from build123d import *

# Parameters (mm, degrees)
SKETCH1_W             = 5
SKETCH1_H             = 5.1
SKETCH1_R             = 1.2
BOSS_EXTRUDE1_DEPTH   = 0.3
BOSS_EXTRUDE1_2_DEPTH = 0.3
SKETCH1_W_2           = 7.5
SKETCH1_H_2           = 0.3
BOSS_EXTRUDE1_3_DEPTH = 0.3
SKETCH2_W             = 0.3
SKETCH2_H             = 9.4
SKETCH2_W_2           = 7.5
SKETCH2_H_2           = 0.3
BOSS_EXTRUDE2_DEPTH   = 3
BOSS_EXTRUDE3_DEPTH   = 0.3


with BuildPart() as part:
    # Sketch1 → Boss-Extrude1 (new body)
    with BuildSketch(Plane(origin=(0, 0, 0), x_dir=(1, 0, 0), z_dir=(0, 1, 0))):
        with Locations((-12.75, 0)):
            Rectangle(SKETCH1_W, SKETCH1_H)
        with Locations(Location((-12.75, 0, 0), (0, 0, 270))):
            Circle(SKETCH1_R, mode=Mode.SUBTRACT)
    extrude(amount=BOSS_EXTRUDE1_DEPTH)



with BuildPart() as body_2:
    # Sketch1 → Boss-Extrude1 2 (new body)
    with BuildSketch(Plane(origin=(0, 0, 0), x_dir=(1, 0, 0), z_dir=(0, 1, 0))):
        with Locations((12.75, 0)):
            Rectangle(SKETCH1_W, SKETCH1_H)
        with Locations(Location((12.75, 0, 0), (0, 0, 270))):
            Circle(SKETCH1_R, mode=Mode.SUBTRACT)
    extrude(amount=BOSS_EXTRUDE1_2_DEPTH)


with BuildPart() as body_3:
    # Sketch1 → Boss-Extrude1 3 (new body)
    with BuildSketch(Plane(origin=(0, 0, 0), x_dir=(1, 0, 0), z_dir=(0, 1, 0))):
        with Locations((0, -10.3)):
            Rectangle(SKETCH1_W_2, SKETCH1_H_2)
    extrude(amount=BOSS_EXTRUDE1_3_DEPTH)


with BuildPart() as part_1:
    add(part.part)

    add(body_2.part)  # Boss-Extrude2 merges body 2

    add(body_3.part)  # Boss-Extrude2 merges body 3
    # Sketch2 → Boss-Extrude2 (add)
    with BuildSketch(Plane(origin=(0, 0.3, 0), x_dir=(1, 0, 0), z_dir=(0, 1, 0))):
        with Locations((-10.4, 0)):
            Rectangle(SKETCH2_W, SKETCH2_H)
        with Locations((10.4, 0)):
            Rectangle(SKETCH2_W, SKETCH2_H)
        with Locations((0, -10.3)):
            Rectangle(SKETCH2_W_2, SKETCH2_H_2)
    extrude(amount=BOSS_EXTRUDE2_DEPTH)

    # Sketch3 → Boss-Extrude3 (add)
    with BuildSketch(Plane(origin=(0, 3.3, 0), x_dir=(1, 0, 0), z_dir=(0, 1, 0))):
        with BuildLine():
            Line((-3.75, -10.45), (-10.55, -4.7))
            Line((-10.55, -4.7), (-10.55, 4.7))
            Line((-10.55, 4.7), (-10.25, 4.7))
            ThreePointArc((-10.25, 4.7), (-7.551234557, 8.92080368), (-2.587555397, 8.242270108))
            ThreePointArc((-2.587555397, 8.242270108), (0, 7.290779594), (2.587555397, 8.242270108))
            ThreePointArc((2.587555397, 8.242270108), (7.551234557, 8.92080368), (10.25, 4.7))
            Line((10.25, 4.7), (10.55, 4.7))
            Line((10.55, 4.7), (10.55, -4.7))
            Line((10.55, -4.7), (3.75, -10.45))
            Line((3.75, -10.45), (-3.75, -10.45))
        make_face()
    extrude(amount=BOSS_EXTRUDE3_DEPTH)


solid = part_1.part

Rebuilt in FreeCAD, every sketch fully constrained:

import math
import FreeCAD as App
import Part
import Sketcher
from FreeCAD import Vector
Q = App.Units.Quantity

doc = App.newDocument("Part")
body = doc.addObject("PartDesign::Body", "Body")

# Sketch on XZ plane
sketch1 = body.newObject("Sketcher::SketchObject", "Sketch")
sketch1.AttachmentSupport = (doc.getObject("XZ_Plane"), [""])
sketch1.MapMode = "FlatFace"
sketch1.addGeometry([
    Part.LineSegment(Vector(-15.25, -2.55, 0), Vector(-15.25, 2.55, 0)),  # 0
    Part.LineSegment(Vector(-15.25, 2.55, 0), Vector(-10.25, 2.55, 0)),  # 1
    Part.LineSegment(Vector(-10.25, 2.55, 0), Vector(-10.25, -2.55, 0)),  # 2
    Part.LineSegment(Vector(-10.25, -2.55, 0), Vector(-15.25, -2.55, 0)),  # 3
    Part.Circle(Vector(-12.75, 0, 0), Vector(0, 0, 1), 1.2),  # 4
], False)
sketch1.addConstraint([
    Sketcher.Constraint("Coincident", 0, 2, 1, 1),
    Sketcher.Constraint("Coincident", 1, 2, 2, 1),
    Sketcher.Constraint("Coincident", 2, 2, 3, 1),
    Sketcher.Constraint("Coincident", 3, 2, 0, 1),
    Sketcher.Constraint("Vertical", 0),
    Sketcher.Constraint("Horizontal", 1),
    Sketcher.Constraint("Vertical", 2),
    Sketcher.Constraint("Horizontal", 3),
    Sketcher.Constraint("PointOnObject", 4, 3, -1),
    Sketcher.Constraint("Diameter", 4, Q("2.4 mm")),
    Sketcher.Constraint("DistanceX", 1, 1, 1, 2, Q("5 mm")),
    Sketcher.Constraint("DistanceY", 0, 1, 0, 2, Q("5.1 mm")),
    Sketcher.Constraint("DistanceX", 0, 2, 4, 3, Q("2.5 mm")),
    Sketcher.Constraint("DistanceX", 4, 3, -1, 1, Q("12.75 mm")),
    Sketcher.Constraint("DistanceY", -1, 1, 0, 2, Q("2.55 mm")),
])
pad1 = body.newObject("PartDesign::Pad", "Pad")
pad1.Profile = sketch1
pad1.Length = 0.3
pad1.Reversed = True
body2 = doc.addObject("PartDesign::Body", "Body001")

# Sketch on XZ plane
sketch2 = body2.newObject("Sketcher::SketchObject", "Sketch001")
sketch2.AttachmentSupport = (doc.getObject("XZ_Plane001"), [""])
sketch2.MapMode = "FlatFace"
sketch2.addGeometry([
    Part.LineSegment(Vector(10.25, -2.55, 0), Vector(10.25, 2.55, 0)),  # 0
    Part.LineSegment(Vector(10.25, 2.55, 0), Vector(15.25, 2.55, 0)),  # 1
    Part.LineSegment(Vector(15.25, 2.55, 0), Vector(15.25, -2.55, 0)),  # 2
    Part.LineSegment(Vector(15.25, -2.55, 0), Vector(10.25, -2.55, 0)),  # 3
    Part.Circle(Vector(12.75, 0, 0), Vector(0, 0, 1), 1.2),  # 4
], False)
sketch2.addConstraint([
    Sketcher.Constraint("Coincident", 0, 2, 1, 1),
    Sketcher.Constraint("Coincident", 1, 2, 2, 1),
    Sketcher.Constraint("Coincident", 2, 2, 3, 1),
    Sketcher.Constraint("Coincident", 3, 2, 0, 1),
    Sketcher.Constraint("Vertical", 0),
    Sketcher.Constraint("Horizontal", 1),
    Sketcher.Constraint("Vertical", 2),
    Sketcher.Constraint("Horizontal", 3),
    Sketcher.Constraint("PointOnObject", 4, 3, -1),
    Sketcher.Constraint("Diameter", 4, Q("2.4 mm")),
    Sketcher.Constraint("DistanceX", 1, 1, 1, 2, Q("5 mm")),
    Sketcher.Constraint("DistanceY", 0, 1, 0, 2, Q("5.1 mm")),
    Sketcher.Constraint("DistanceX", 0, 2, 4, 3, Q("2.5 mm")),
    Sketcher.Constraint("DistanceX", -1, 1, 4, 3, Q("12.75 mm")),
    Sketcher.Constraint("DistanceY", -1, 1, 0, 2, Q("2.55 mm")),
])
pad2 = body2.newObject("PartDesign::Pad", "Pad001")
pad2.Profile = sketch2
pad2.Length = 0.3
pad2.Reversed = True
body3 = doc.addObject("PartDesign::Body", "Body002")

# Sketch on XZ plane
sketch3 = body3.newObject("Sketcher::SketchObject", "Sketch002")
sketch3.AttachmentSupport = (doc.getObject("XZ_Plane002"), [""])
sketch3.MapMode = "FlatFace"
sketch3.addGeometry([
    Part.LineSegment(Vector(-3.75, 10.15, 0), Vector(-3.75, 10.45, 0)),
    Part.LineSegment(Vector(-3.75, 10.45, 0), Vector(3.75, 10.45, 0)),
    Part.LineSegment(Vector(3.75, 10.45, 0), Vector(3.75, 10.15, 0)),
    Part.LineSegment(Vector(3.75, 10.15, 0), Vector(-3.75, 10.15, 0)),
], False)
sketch3.addConstraint([
    Sketcher.Constraint("Coincident", 0, 2, 1, 1),
    Sketcher.Constraint("Coincident", 1, 2, 2, 1),
    Sketcher.Constraint("Coincident", 2, 2, 3, 1),
    Sketcher.Constraint("Coincident", 3, 2, 0, 1),
    Sketcher.Constraint("Vertical", 0),
    Sketcher.Constraint("Horizontal", 1),
    Sketcher.Constraint("Vertical", 2),
    Sketcher.Constraint("Horizontal", 3),
    Sketcher.Constraint("DistanceX", 1, 1, 1, 2, Q("7.5 mm")),
    Sketcher.Constraint("DistanceY", 0, 1, 0, 2, Q("0.3 mm")),
    Sketcher.Constraint("DistanceX", 0, 2, -1, 1, Q("3.75 mm")),
    Sketcher.Constraint("DistanceY", -1, 1, 0, 2, Q("10.45 mm")),
])
pad3 = body3.newObject("PartDesign::Pad", "Pad002")
pad3.Profile = sketch3
pad3.Length = 0.3
pad3.Reversed = True
body.AllowCompound = True
doc.recompute()

boolean = body.newObject("PartDesign::Boolean", "Boolean")
boolean.Type = "Fuse"
boolean.addObjects([body2])
doc.recompute()

boolean2 = body.newObject("PartDesign::Boolean", "Boolean001")
boolean2.Type = "Fuse"
boolean2.addObjects([body3])

# Sketch on XZ plane
sketch4 = body.newObject("Sketcher::SketchObject", "Sketch003")
sketch4.AttachmentSupport = (doc.getObject("XZ_Plane"), [""])
sketch4.MapMode = "FlatFace"
sketch4.AttachmentOffset = App.Placement(Vector(0, 0, -0.3), App.Rotation())
sketch4.addGeometry([
    Part.LineSegment(Vector(-10.55, -4.7, 0), Vector(-10.55, 4.7, 0)),  # 0
    Part.LineSegment(Vector(-10.55, 4.7, 0), Vector(-10.25, 4.7, 0)),  # 1
    Part.LineSegment(Vector(-10.25, 4.7, 0), Vector(-10.25, -4.7, 0)),  # 2
    Part.LineSegment(Vector(-10.25, -4.7, 0), Vector(-10.55, -4.7, 0)),  # 3
    Part.LineSegment(Vector(10.25, -4.7, 0), Vector(10.25, 4.7, 0)),  # 4
    Part.LineSegment(Vector(10.25, 4.7, 0), Vector(10.55, 4.7, 0)),  # 5
    Part.LineSegment(Vector(10.55, 4.7, 0), Vector(10.55, -4.7, 0)),  # 6
    Part.LineSegment(Vector(10.55, -4.7, 0), Vector(10.25, -4.7, 0)),  # 7
    Part.LineSegment(Vector(-3.75, 10.15, 0), Vector(-3.75, 10.45, 0)),  # 8
    Part.LineSegment(Vector(-3.75, 10.45, 0), Vector(3.75, 10.45, 0)),  # 9
    Part.LineSegment(Vector(3.75, 10.45, 0), Vector(3.75, 10.15, 0)),  # 10
    Part.LineSegment(Vector(3.75, 10.15, 0), Vector(-3.75, 10.15, 0)),  # 11
], False)
sketch4.addConstraint([
    Sketcher.Constraint("Coincident", 0, 2, 1, 1),
    Sketcher.Constraint("Coincident", 1, 2, 2, 1),
    Sketcher.Constraint("Coincident", 2, 2, 3, 1),
    Sketcher.Constraint("Coincident", 3, 2, 0, 1),
    Sketcher.Constraint("Coincident", 4, 2, 5, 1),
    Sketcher.Constraint("Coincident", 5, 2, 6, 1),
    Sketcher.Constraint("Coincident", 6, 2, 7, 1),
    Sketcher.Constraint("Coincident", 7, 2, 4, 1),
    Sketcher.Constraint("Coincident", 8, 2, 9, 1),
    Sketcher.Constraint("Coincident", 9, 2, 10, 1),
    Sketcher.Constraint("Coincident", 10, 2, 11, 1),
    Sketcher.Constraint("Coincident", 11, 2, 8, 1),
    Sketcher.Constraint("Vertical", 0),
    Sketcher.Constraint("Horizontal", 1),
    Sketcher.Constraint("Vertical", 2),
    Sketcher.Constraint("Horizontal", 3),
    Sketcher.Constraint("Vertical", 4),
    Sketcher.Constraint("Horizontal", 5),
    Sketcher.Constraint("Vertical", 6),
    Sketcher.Constraint("Horizontal", 7),
    Sketcher.Constraint("Vertical", 8),
    Sketcher.Constraint("Horizontal", 9),
    Sketcher.Constraint("Vertical", 10),
    Sketcher.Constraint("Horizontal", 11),
    Sketcher.Constraint("Symmetric", 2, 2, 4, 2, -1, 1),
    Sketcher.Constraint("Symmetric", 0, 2, 6, 2, -1, 1),
    Sketcher.Constraint("Horizontal", 1, 2, 4, 2),
    Sketcher.Constraint("Equal", 7, 8),
    Sketcher.Constraint("DistanceX", 1, 1, 1, 2, Q("0.3 mm")),
    Sketcher.Constraint("DistanceX", 9, 1, 9, 2, Q("7.5 mm")),
    Sketcher.Constraint("DistanceY", 0, 1, 0, 2, Q("9.4 mm")),
    Sketcher.Constraint("DistanceX", 8, 2, 4, 2, Q("14 mm")),
    Sketcher.Constraint("DistanceX", 1, 2, 9, 2, Q("14 mm")),
    Sketcher.Constraint("DistanceY", -1, 1, 8, 2, Q("10.45 mm")),
])
pad4 = body.newObject("PartDesign::Pad", "Pad003")
pad4.Profile = sketch4
pad4.Length = 3
pad4.Reversed = True

# Sketch on XZ plane
sketch5 = body.newObject("Sketcher::SketchObject", "Sketch004")
sketch5.AttachmentSupport = (doc.getObject("XZ_Plane"), [""])
sketch5.MapMode = "FlatFace"
sketch5.AttachmentOffset = App.Placement(Vector(0, 0, -3.3), App.Rotation())
sketch5.addGeometry([
    Part.LineSegment(Vector(-10.55, 4.7, 0), Vector(-3.75, 10.45, 0)),  # 0
    Part.LineSegment(Vector(-3.75, 10.45, 0), Vector(3.75, 10.45, 0)),  # 1
    Part.LineSegment(Vector(3.75, 10.45, 0), Vector(10.55, 4.7, 0)),  # 2
    Part.LineSegment(Vector(10.55, 4.7, 0), Vector(10.55, -4.7, 0)),  # 3
    Part.LineSegment(Vector(10.55, -4.7, 0), Vector(10.25, -4.7, 0)),  # 4
    Part.ArcOfCircle(Part.Circle(Vector(5.6, -4.7, 0), Vector(0, 0, 1), 4.65), math.radians(-130.37876), math.radians(0)),  # 5
    Part.ArcOfCircle(Part.Circle(Vector(0, -11.284922, 0), Vector(0, 0, 1), 3.994142), math.radians(49.62124), math.radians(130.37876)),  # 6
    Part.ArcOfCircle(Part.Circle(Vector(-5.6, -4.7, 0), Vector(0, 0, 1), 4.65), math.radians(180), math.radians(310.37876)),  # 7
    Part.LineSegment(Vector(-10.25, -4.7, 0), Vector(-10.55, -4.7, 0)),  # 8
    Part.LineSegment(Vector(-10.55, -4.7, 0), Vector(-10.55, 4.7, 0)),  # 9
], False)
sketch5.addConstraint([
    Sketcher.Constraint("Coincident", 0, 2, 1, 1),
    Sketcher.Constraint("Coincident", 1, 2, 2, 1),
    Sketcher.Constraint("Coincident", 2, 2, 3, 1),
    Sketcher.Constraint("Coincident", 3, 2, 4, 1),
    Sketcher.Constraint("Coincident", 4, 2, 5, 2),
    Sketcher.Constraint("Tangent", 5, 1, 6, 1),
    Sketcher.Constraint("Tangent", 6, 2, 7, 2),
    Sketcher.Constraint("Coincident", 7, 1, 8, 1),
    Sketcher.Constraint("Coincident", 8, 2, 9, 1),
    Sketcher.Constraint("Coincident", 9, 2, 0, 1),
    Sketcher.Constraint("Horizontal", 1),
    Sketcher.Constraint("Vertical", 3),
    Sketcher.Constraint("Horizontal", 4),
    Sketcher.Constraint("Horizontal", 8),
    Sketcher.Constraint("Vertical", 9),
    Sketcher.Constraint("Equal", 5, 7),
    Sketcher.Constraint("Symmetric", 2, 2, 8, 2, -1, 1),
    Sketcher.Constraint("Symmetric", 5, 3, 7, 3, -2),
    Sketcher.Constraint("Horizontal", 7, 3, 3, 2),
    Sketcher.Constraint("Horizontal", 4, 2, 7, 1),
    Sketcher.Constraint("Horizontal", 2, 2, 9, 2),
    Sketcher.Constraint("Equal", 0, 2),
    Sketcher.Constraint("Radius", 5, Q("4.65 mm")),
    Sketcher.Constraint("DistanceX", 1, 1, 1, 2, Q("7.5 mm")),
    Sketcher.Constraint("DistanceX", 4, 2, 4, 1, Q("0.3 mm")),
    Sketcher.Constraint("DistanceY", 3, 2, 3, 1, Q("9.4 mm")),
    Sketcher.Constraint("DistanceX", -1, 1, 5, 3, Q("5.6 mm")),
    Sketcher.Constraint("DistanceY", -1, 1, 0, 2, Q("10.45 mm")),
    Sketcher.Constraint("Radius", 6, Q("3.994142 mm")),
])
pad5 = body.newObject("PartDesign::Pad", "Pad004")
pad5.Profile = sketch5
pad5.Length = 0.3
pad5.Reversed = True

doc.recompute()
